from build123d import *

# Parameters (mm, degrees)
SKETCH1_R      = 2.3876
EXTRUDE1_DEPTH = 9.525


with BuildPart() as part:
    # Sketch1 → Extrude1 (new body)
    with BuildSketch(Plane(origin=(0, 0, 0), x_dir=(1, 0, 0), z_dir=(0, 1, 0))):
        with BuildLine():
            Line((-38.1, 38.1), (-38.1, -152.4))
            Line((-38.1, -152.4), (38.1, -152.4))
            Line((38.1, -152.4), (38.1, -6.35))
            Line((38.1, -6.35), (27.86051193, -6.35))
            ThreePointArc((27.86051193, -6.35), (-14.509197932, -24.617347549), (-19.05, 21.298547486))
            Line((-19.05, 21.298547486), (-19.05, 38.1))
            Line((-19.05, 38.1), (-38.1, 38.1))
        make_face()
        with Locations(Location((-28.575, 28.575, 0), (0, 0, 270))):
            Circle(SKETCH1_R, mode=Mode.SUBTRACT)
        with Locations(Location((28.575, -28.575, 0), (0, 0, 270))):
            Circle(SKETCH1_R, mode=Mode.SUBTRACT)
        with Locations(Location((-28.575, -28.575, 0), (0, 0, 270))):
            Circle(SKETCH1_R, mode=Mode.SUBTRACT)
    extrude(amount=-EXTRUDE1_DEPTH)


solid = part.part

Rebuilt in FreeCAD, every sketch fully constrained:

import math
import FreeCAD as App
import Part
import Sketcher
Q = App.Units.Quantity

doc = App.newDocument("Part")
params = doc.addObject("Spreadsheet::Sheet", "Params")
for row, (alias, value) in enumerate([
    ("sketch1_width", "3 in"),
    ("sketch1_diameter", "0.188 in"),
    ("sketch1_height", "7.5 in"),
    ("sketch1_radius", "1.125 in"),
    ("sketch1_width2", "0.75 in"),
    ("pad1_length", "0.375 in"),
], start=1):
    params.set(f"A{row}", alias)
    params.set(f"B{row}", "=" + value)
    params.setAlias(f"B{row}", alias)

body = doc.addObject("PartDesign::Body", "Body")

sketch1 = doc.addObject("Sketcher::SketchObject", "Sketch")
body.addObject(sketch1)
sketch1.AttachmentSupport = (doc.XZ_Plane, [""])
sketch1.MapMode = "FlatFace"
sketch1.addGeometry([
    Part.LineSegment(App.Vector(-38.1, -38.1, 0), App.Vector(-38.1, 152.4, 0)),
    Part.LineSegment(App.Vector(-38.1, 152.4, 0), App.Vector(38.1, 152.4, 0)),
    Part.LineSegment(App.Vector(38.1, 152.4, 0), App.Vector(38.1, 6.3, 0)),
    Part.LineSegment(App.Vector(38.1, 6.3, 0), App.Vector(27.9, 6.3, 0)),
    Part.ArcOfCircle(Part.Circle(App.Vector(0, 0, 0), App.Vector(0, 0, 1), 28.6), math.radians(13), math.radians(228)),
    Part.LineSegment(App.Vector(-19.1, -21.3, 0), App.Vector(-19.1, -38.1, 0)),
    Part.LineSegment(App.Vector(-19.1, -38.1, 0), App.Vector(-38.1, -38.1, 0)),
    Part.Circle(App.Vector(-28.6, 28.6, 0), App.Vector(0, 0, 1), 2.4),
    Part.Circle(App.Vector(28.6, 28.6, 0), App.Vector(0, 0, 1), 2.4),
    Part.Circle(App.Vector(-28.6, -28.6, 0), App.Vector(0, 0, 1), 2.4),
], False)
sketch1.addConstraint([
    Sketcher.Constraint("Coincident", 0, 2, 1, 1),
    Sketcher.Constraint("Coincident", 1, 2, 2, 1),
    Sketcher.Constraint("Coincident", 2, 2, 3, 1),
    Sketcher.Constraint("Coincident", 3, 2, 4, 1),
    Sketcher.Constraint("Coincident", 4, 2, 5, 1),
    Sketcher.Constraint("Coincident", 5, 2, 6, 1),
    Sketcher.Constraint("Coincident", 6, 2, 0, 1),
    Sketcher.Constraint("Vertical", 0),
    Sketcher.Constraint("Horizontal", 1),
    Sketcher.Constraint("Vertical", 2),
    Sketcher.Constraint("Horizontal", 3),
    Sketcher.Constraint("Vertical", 5),
    Sketcher.Constraint("Horizontal", 6),
    Sketcher.Constraint("Coincident", 4, 3, -1, 1),
    Sketcher.Constraint("Equal", 7, 8),
    Sketcher.Constraint("Equal", 8, 9),
    Sketcher.Constraint("Symmetric", 8, 3, 9, 3, -1, 1),
    Sketcher.Constraint("Symmetric", 7, 3, 8, 3, -2),
    Sketcher.Constraint("DistanceX", 1, 1, 1, 2, Q("3 in")),
    Sketcher.Constraint("Diameter", 7, Q("0.188 in")),
    Sketcher.Constraint("DistanceY", 0, 1, 0, 2, Q("7.5 in")),
    Sketcher.Constraint("DistanceY", -1, 1, 0, 2, Q("6 in")),
    Sketcher.Constraint("Radius", 4, Q("1.125 in")),
    Sketcher.Constraint("DistanceX", 6, 2, 6, 1, Q("0.75 in")),
    Sketcher.Constraint("DistanceY", 2, 2, 2, 1, Q("5.75 in")),
    Sketcher.Constraint("DistanceX", 0, 2, -1, 1, Q("1.5 in")),
    Sketcher.Constraint("DistanceX", 7, 3, 8, 3, Q("2.25 in")),
    Sketcher.Constraint("DistanceY", 9, 3, 7, 3, Q("2.25 in")),
])
sketch1.setExpression("Constraints[18]", "Params.sketch1_width")
sketch1.setExpression("Constraints[19]", "Params.sketch1_diameter")
sketch1.setExpression("Constraints[20]", "Params.sketch1_height")
sketch1.setExpression("Constraints[22]", "Params.sketch1_radius")
sketch1.setExpression("Constraints[23]", "Params.sketch1_width2")
pad1 = doc.addObject("PartDesign::Pad", "Pad")
body.addObject(pad1)
pad1.Profile = sketch1
pad1.setExpression("Length", "Params.pad1_length")

doc.recompute()
